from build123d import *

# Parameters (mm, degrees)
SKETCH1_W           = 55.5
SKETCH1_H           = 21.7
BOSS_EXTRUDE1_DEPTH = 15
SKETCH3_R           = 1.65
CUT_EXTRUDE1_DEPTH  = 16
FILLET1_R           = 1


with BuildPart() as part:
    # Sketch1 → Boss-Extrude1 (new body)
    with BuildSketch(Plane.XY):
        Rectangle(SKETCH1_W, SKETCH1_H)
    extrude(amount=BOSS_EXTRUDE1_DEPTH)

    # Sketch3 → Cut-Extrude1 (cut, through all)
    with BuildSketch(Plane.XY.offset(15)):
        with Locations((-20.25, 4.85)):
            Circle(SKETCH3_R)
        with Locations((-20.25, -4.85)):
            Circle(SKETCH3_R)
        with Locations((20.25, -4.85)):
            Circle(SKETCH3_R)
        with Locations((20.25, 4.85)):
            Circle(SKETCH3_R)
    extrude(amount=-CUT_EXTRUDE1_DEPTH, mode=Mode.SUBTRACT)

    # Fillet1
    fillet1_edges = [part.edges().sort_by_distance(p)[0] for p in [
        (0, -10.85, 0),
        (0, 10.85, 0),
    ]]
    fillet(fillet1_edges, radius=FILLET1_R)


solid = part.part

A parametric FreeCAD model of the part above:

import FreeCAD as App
import Part
import Sketcher
Q = App.Units.Quantity


def edges_at(feature, points):
    """Names of the edges that pass closest to the given points."""
    edges = feature.Shape.Edges
    near = lambda p: min(range(len(edges)), key=lambda i: edges[i].distToShape(Part.Vertex(*p))[0])
    return sorted({f"Edge{near(p) + 1}" for p in points})

doc = App.newDocument("Part")
params = doc.addObject("Spreadsheet::Sheet", "Params")
for row, (alias, value) in enumerate([
    ("sketch1_width", "55.5 mm"),
    ("sketch1_height", "21.7 mm"),
    ("pad1_length", "15 mm"),
    ("sketch2_diameter", "3.3 mm"),
    ("fillet_radius", "1 mm"),
], start=1):
    params.set(f"A{row}", alias)
    params.set(f"B{row}", "=" + value)
    params.setAlias(f"B{row}", alias)

body = doc.addObject("PartDesign::Body", "Body")

# Sketch on XY plane
sketch1 = body.newObject("Sketcher::SketchObject", "Sketch")
sketch1.AttachmentSupport = (doc.getObject("XY_Plane"), [""])
sketch1.MapMode = "FlatFace"
sketch1.addGeometry([
    Part.LineSegment(App.Vector(-28, 11, 0), App.Vector(-28, -11, 0)),
    Part.LineSegment(App.Vector(-28, -11, 0), App.Vector(28, -11, 0)),
    Part.LineSegment(App.Vector(28, -11, 0), App.Vector(28, 11, 0)),
    Part.LineSegment(App.Vector(28, 11, 0), App.Vector(-28, 11, 0)),
], False)
sketch1.addConstraint([
    Sketcher.Constraint("Coincident", 0, 2, 1, 1),
    Sketcher.Constraint("Coincident", 1, 2, 2, 1),
    Sketcher.Constraint("Coincident", 2, 2, 3, 1),
    Sketcher.Constraint("Coincident", 3, 2, 0, 1),
    Sketcher.Constraint("Vertical", 0),
    Sketcher.Constraint("Horizontal", 1),
    Sketcher.Constraint("Vertical", 2),
    Sketcher.Constraint("Horizontal", 3),
    Sketcher.Constraint("Symmetric", 0, 2, 2, 2, -1, 1),
    Sketcher.Constraint("DistanceX", 1, 1, 1, 2, Q("55.5 mm")),
    Sketcher.Constraint("DistanceY", 0, 2, 0, 1, Q("21.7 mm")),
])
sketch1.setExpression("Constraints[9]", "Params.sketch1_width")
sketch1.setExpression("Constraints[10]", "Params.sketch1_height")
pad1 = body.newObject("PartDesign::Pad", "Pad")
pad1.Profile = sketch1
pad1.setExpression("Length", "Params.pad1_length")

# Sketch on XY plane
sketch2 = body.newObject("Sketcher::SketchObject", "Sketch001")
sketch2.AttachmentSupport = (doc.getObject("XY_Plane"), [""])
sketch2.MapMode = "FlatFace"
sketch2.AttachmentOffset = App.Placement(App.Vector(0, 0, 15), App.Rotation())
sketch2.addGeometry([
    Part.Circle(App.Vector(-20.2, 4.8, 0), App.Vector(0, 0, 1), 1.6),
    Part.Circle(App.Vector(-20.2, -4.8, 0), App.Vector(0, 0, 1), 1.6),
    Part.Circle(App.Vector(20.2, -4.8, 0), App.Vector(0, 0, 1), 1.6),
    Part.Circle(App.Vector(20.2, 4.8, 0), App.Vector(0, 0, 1), 1.6),
], False)
sketch2.addConstraint([
    Sketcher.Constraint("Equal", 0, 1),
    Sketcher.Constraint("Equal", 1, 2),
    Sketcher.Constraint("Equal", 2, 3),
    Sketcher.Constraint("Symmetric", 0, 3, 2, 3, -1, 1),
    Sketcher.Constraint("Symmetric", 1, 3, 3, 3, -1, 1),
    Sketcher.Constraint("Symmetric", 1, 3, 2, 3, -2),
    Sketcher.Constraint("Diameter", 0, Q("3.3 mm")),
    Sketcher.Constraint("DistanceY", 1, 3, 0, 3, Q("9.7 mm")),
    Sketcher.Constraint("DistanceX", 1, 3, 2, 3, Q("40.5 mm")),
])
sketch2.setExpression("Constraints[6]", "Params.sketch2_diameter")
pocket1 = body.newObject("PartDesign::Pocket", "Pocket")
pocket1.Profile = sketch2
pocket1.Type = "ThroughAll"
doc.recompute()

fillet = body.newObject("PartDesign::Fillet", "Fillet")
fillet.Base = (pocket1, edges_at(pocket1, [(0, -10.85, 0), (0, 10.85, 0)]))
fillet.setExpression("Radius", "Params.fillet_radius")

doc.recompute()
